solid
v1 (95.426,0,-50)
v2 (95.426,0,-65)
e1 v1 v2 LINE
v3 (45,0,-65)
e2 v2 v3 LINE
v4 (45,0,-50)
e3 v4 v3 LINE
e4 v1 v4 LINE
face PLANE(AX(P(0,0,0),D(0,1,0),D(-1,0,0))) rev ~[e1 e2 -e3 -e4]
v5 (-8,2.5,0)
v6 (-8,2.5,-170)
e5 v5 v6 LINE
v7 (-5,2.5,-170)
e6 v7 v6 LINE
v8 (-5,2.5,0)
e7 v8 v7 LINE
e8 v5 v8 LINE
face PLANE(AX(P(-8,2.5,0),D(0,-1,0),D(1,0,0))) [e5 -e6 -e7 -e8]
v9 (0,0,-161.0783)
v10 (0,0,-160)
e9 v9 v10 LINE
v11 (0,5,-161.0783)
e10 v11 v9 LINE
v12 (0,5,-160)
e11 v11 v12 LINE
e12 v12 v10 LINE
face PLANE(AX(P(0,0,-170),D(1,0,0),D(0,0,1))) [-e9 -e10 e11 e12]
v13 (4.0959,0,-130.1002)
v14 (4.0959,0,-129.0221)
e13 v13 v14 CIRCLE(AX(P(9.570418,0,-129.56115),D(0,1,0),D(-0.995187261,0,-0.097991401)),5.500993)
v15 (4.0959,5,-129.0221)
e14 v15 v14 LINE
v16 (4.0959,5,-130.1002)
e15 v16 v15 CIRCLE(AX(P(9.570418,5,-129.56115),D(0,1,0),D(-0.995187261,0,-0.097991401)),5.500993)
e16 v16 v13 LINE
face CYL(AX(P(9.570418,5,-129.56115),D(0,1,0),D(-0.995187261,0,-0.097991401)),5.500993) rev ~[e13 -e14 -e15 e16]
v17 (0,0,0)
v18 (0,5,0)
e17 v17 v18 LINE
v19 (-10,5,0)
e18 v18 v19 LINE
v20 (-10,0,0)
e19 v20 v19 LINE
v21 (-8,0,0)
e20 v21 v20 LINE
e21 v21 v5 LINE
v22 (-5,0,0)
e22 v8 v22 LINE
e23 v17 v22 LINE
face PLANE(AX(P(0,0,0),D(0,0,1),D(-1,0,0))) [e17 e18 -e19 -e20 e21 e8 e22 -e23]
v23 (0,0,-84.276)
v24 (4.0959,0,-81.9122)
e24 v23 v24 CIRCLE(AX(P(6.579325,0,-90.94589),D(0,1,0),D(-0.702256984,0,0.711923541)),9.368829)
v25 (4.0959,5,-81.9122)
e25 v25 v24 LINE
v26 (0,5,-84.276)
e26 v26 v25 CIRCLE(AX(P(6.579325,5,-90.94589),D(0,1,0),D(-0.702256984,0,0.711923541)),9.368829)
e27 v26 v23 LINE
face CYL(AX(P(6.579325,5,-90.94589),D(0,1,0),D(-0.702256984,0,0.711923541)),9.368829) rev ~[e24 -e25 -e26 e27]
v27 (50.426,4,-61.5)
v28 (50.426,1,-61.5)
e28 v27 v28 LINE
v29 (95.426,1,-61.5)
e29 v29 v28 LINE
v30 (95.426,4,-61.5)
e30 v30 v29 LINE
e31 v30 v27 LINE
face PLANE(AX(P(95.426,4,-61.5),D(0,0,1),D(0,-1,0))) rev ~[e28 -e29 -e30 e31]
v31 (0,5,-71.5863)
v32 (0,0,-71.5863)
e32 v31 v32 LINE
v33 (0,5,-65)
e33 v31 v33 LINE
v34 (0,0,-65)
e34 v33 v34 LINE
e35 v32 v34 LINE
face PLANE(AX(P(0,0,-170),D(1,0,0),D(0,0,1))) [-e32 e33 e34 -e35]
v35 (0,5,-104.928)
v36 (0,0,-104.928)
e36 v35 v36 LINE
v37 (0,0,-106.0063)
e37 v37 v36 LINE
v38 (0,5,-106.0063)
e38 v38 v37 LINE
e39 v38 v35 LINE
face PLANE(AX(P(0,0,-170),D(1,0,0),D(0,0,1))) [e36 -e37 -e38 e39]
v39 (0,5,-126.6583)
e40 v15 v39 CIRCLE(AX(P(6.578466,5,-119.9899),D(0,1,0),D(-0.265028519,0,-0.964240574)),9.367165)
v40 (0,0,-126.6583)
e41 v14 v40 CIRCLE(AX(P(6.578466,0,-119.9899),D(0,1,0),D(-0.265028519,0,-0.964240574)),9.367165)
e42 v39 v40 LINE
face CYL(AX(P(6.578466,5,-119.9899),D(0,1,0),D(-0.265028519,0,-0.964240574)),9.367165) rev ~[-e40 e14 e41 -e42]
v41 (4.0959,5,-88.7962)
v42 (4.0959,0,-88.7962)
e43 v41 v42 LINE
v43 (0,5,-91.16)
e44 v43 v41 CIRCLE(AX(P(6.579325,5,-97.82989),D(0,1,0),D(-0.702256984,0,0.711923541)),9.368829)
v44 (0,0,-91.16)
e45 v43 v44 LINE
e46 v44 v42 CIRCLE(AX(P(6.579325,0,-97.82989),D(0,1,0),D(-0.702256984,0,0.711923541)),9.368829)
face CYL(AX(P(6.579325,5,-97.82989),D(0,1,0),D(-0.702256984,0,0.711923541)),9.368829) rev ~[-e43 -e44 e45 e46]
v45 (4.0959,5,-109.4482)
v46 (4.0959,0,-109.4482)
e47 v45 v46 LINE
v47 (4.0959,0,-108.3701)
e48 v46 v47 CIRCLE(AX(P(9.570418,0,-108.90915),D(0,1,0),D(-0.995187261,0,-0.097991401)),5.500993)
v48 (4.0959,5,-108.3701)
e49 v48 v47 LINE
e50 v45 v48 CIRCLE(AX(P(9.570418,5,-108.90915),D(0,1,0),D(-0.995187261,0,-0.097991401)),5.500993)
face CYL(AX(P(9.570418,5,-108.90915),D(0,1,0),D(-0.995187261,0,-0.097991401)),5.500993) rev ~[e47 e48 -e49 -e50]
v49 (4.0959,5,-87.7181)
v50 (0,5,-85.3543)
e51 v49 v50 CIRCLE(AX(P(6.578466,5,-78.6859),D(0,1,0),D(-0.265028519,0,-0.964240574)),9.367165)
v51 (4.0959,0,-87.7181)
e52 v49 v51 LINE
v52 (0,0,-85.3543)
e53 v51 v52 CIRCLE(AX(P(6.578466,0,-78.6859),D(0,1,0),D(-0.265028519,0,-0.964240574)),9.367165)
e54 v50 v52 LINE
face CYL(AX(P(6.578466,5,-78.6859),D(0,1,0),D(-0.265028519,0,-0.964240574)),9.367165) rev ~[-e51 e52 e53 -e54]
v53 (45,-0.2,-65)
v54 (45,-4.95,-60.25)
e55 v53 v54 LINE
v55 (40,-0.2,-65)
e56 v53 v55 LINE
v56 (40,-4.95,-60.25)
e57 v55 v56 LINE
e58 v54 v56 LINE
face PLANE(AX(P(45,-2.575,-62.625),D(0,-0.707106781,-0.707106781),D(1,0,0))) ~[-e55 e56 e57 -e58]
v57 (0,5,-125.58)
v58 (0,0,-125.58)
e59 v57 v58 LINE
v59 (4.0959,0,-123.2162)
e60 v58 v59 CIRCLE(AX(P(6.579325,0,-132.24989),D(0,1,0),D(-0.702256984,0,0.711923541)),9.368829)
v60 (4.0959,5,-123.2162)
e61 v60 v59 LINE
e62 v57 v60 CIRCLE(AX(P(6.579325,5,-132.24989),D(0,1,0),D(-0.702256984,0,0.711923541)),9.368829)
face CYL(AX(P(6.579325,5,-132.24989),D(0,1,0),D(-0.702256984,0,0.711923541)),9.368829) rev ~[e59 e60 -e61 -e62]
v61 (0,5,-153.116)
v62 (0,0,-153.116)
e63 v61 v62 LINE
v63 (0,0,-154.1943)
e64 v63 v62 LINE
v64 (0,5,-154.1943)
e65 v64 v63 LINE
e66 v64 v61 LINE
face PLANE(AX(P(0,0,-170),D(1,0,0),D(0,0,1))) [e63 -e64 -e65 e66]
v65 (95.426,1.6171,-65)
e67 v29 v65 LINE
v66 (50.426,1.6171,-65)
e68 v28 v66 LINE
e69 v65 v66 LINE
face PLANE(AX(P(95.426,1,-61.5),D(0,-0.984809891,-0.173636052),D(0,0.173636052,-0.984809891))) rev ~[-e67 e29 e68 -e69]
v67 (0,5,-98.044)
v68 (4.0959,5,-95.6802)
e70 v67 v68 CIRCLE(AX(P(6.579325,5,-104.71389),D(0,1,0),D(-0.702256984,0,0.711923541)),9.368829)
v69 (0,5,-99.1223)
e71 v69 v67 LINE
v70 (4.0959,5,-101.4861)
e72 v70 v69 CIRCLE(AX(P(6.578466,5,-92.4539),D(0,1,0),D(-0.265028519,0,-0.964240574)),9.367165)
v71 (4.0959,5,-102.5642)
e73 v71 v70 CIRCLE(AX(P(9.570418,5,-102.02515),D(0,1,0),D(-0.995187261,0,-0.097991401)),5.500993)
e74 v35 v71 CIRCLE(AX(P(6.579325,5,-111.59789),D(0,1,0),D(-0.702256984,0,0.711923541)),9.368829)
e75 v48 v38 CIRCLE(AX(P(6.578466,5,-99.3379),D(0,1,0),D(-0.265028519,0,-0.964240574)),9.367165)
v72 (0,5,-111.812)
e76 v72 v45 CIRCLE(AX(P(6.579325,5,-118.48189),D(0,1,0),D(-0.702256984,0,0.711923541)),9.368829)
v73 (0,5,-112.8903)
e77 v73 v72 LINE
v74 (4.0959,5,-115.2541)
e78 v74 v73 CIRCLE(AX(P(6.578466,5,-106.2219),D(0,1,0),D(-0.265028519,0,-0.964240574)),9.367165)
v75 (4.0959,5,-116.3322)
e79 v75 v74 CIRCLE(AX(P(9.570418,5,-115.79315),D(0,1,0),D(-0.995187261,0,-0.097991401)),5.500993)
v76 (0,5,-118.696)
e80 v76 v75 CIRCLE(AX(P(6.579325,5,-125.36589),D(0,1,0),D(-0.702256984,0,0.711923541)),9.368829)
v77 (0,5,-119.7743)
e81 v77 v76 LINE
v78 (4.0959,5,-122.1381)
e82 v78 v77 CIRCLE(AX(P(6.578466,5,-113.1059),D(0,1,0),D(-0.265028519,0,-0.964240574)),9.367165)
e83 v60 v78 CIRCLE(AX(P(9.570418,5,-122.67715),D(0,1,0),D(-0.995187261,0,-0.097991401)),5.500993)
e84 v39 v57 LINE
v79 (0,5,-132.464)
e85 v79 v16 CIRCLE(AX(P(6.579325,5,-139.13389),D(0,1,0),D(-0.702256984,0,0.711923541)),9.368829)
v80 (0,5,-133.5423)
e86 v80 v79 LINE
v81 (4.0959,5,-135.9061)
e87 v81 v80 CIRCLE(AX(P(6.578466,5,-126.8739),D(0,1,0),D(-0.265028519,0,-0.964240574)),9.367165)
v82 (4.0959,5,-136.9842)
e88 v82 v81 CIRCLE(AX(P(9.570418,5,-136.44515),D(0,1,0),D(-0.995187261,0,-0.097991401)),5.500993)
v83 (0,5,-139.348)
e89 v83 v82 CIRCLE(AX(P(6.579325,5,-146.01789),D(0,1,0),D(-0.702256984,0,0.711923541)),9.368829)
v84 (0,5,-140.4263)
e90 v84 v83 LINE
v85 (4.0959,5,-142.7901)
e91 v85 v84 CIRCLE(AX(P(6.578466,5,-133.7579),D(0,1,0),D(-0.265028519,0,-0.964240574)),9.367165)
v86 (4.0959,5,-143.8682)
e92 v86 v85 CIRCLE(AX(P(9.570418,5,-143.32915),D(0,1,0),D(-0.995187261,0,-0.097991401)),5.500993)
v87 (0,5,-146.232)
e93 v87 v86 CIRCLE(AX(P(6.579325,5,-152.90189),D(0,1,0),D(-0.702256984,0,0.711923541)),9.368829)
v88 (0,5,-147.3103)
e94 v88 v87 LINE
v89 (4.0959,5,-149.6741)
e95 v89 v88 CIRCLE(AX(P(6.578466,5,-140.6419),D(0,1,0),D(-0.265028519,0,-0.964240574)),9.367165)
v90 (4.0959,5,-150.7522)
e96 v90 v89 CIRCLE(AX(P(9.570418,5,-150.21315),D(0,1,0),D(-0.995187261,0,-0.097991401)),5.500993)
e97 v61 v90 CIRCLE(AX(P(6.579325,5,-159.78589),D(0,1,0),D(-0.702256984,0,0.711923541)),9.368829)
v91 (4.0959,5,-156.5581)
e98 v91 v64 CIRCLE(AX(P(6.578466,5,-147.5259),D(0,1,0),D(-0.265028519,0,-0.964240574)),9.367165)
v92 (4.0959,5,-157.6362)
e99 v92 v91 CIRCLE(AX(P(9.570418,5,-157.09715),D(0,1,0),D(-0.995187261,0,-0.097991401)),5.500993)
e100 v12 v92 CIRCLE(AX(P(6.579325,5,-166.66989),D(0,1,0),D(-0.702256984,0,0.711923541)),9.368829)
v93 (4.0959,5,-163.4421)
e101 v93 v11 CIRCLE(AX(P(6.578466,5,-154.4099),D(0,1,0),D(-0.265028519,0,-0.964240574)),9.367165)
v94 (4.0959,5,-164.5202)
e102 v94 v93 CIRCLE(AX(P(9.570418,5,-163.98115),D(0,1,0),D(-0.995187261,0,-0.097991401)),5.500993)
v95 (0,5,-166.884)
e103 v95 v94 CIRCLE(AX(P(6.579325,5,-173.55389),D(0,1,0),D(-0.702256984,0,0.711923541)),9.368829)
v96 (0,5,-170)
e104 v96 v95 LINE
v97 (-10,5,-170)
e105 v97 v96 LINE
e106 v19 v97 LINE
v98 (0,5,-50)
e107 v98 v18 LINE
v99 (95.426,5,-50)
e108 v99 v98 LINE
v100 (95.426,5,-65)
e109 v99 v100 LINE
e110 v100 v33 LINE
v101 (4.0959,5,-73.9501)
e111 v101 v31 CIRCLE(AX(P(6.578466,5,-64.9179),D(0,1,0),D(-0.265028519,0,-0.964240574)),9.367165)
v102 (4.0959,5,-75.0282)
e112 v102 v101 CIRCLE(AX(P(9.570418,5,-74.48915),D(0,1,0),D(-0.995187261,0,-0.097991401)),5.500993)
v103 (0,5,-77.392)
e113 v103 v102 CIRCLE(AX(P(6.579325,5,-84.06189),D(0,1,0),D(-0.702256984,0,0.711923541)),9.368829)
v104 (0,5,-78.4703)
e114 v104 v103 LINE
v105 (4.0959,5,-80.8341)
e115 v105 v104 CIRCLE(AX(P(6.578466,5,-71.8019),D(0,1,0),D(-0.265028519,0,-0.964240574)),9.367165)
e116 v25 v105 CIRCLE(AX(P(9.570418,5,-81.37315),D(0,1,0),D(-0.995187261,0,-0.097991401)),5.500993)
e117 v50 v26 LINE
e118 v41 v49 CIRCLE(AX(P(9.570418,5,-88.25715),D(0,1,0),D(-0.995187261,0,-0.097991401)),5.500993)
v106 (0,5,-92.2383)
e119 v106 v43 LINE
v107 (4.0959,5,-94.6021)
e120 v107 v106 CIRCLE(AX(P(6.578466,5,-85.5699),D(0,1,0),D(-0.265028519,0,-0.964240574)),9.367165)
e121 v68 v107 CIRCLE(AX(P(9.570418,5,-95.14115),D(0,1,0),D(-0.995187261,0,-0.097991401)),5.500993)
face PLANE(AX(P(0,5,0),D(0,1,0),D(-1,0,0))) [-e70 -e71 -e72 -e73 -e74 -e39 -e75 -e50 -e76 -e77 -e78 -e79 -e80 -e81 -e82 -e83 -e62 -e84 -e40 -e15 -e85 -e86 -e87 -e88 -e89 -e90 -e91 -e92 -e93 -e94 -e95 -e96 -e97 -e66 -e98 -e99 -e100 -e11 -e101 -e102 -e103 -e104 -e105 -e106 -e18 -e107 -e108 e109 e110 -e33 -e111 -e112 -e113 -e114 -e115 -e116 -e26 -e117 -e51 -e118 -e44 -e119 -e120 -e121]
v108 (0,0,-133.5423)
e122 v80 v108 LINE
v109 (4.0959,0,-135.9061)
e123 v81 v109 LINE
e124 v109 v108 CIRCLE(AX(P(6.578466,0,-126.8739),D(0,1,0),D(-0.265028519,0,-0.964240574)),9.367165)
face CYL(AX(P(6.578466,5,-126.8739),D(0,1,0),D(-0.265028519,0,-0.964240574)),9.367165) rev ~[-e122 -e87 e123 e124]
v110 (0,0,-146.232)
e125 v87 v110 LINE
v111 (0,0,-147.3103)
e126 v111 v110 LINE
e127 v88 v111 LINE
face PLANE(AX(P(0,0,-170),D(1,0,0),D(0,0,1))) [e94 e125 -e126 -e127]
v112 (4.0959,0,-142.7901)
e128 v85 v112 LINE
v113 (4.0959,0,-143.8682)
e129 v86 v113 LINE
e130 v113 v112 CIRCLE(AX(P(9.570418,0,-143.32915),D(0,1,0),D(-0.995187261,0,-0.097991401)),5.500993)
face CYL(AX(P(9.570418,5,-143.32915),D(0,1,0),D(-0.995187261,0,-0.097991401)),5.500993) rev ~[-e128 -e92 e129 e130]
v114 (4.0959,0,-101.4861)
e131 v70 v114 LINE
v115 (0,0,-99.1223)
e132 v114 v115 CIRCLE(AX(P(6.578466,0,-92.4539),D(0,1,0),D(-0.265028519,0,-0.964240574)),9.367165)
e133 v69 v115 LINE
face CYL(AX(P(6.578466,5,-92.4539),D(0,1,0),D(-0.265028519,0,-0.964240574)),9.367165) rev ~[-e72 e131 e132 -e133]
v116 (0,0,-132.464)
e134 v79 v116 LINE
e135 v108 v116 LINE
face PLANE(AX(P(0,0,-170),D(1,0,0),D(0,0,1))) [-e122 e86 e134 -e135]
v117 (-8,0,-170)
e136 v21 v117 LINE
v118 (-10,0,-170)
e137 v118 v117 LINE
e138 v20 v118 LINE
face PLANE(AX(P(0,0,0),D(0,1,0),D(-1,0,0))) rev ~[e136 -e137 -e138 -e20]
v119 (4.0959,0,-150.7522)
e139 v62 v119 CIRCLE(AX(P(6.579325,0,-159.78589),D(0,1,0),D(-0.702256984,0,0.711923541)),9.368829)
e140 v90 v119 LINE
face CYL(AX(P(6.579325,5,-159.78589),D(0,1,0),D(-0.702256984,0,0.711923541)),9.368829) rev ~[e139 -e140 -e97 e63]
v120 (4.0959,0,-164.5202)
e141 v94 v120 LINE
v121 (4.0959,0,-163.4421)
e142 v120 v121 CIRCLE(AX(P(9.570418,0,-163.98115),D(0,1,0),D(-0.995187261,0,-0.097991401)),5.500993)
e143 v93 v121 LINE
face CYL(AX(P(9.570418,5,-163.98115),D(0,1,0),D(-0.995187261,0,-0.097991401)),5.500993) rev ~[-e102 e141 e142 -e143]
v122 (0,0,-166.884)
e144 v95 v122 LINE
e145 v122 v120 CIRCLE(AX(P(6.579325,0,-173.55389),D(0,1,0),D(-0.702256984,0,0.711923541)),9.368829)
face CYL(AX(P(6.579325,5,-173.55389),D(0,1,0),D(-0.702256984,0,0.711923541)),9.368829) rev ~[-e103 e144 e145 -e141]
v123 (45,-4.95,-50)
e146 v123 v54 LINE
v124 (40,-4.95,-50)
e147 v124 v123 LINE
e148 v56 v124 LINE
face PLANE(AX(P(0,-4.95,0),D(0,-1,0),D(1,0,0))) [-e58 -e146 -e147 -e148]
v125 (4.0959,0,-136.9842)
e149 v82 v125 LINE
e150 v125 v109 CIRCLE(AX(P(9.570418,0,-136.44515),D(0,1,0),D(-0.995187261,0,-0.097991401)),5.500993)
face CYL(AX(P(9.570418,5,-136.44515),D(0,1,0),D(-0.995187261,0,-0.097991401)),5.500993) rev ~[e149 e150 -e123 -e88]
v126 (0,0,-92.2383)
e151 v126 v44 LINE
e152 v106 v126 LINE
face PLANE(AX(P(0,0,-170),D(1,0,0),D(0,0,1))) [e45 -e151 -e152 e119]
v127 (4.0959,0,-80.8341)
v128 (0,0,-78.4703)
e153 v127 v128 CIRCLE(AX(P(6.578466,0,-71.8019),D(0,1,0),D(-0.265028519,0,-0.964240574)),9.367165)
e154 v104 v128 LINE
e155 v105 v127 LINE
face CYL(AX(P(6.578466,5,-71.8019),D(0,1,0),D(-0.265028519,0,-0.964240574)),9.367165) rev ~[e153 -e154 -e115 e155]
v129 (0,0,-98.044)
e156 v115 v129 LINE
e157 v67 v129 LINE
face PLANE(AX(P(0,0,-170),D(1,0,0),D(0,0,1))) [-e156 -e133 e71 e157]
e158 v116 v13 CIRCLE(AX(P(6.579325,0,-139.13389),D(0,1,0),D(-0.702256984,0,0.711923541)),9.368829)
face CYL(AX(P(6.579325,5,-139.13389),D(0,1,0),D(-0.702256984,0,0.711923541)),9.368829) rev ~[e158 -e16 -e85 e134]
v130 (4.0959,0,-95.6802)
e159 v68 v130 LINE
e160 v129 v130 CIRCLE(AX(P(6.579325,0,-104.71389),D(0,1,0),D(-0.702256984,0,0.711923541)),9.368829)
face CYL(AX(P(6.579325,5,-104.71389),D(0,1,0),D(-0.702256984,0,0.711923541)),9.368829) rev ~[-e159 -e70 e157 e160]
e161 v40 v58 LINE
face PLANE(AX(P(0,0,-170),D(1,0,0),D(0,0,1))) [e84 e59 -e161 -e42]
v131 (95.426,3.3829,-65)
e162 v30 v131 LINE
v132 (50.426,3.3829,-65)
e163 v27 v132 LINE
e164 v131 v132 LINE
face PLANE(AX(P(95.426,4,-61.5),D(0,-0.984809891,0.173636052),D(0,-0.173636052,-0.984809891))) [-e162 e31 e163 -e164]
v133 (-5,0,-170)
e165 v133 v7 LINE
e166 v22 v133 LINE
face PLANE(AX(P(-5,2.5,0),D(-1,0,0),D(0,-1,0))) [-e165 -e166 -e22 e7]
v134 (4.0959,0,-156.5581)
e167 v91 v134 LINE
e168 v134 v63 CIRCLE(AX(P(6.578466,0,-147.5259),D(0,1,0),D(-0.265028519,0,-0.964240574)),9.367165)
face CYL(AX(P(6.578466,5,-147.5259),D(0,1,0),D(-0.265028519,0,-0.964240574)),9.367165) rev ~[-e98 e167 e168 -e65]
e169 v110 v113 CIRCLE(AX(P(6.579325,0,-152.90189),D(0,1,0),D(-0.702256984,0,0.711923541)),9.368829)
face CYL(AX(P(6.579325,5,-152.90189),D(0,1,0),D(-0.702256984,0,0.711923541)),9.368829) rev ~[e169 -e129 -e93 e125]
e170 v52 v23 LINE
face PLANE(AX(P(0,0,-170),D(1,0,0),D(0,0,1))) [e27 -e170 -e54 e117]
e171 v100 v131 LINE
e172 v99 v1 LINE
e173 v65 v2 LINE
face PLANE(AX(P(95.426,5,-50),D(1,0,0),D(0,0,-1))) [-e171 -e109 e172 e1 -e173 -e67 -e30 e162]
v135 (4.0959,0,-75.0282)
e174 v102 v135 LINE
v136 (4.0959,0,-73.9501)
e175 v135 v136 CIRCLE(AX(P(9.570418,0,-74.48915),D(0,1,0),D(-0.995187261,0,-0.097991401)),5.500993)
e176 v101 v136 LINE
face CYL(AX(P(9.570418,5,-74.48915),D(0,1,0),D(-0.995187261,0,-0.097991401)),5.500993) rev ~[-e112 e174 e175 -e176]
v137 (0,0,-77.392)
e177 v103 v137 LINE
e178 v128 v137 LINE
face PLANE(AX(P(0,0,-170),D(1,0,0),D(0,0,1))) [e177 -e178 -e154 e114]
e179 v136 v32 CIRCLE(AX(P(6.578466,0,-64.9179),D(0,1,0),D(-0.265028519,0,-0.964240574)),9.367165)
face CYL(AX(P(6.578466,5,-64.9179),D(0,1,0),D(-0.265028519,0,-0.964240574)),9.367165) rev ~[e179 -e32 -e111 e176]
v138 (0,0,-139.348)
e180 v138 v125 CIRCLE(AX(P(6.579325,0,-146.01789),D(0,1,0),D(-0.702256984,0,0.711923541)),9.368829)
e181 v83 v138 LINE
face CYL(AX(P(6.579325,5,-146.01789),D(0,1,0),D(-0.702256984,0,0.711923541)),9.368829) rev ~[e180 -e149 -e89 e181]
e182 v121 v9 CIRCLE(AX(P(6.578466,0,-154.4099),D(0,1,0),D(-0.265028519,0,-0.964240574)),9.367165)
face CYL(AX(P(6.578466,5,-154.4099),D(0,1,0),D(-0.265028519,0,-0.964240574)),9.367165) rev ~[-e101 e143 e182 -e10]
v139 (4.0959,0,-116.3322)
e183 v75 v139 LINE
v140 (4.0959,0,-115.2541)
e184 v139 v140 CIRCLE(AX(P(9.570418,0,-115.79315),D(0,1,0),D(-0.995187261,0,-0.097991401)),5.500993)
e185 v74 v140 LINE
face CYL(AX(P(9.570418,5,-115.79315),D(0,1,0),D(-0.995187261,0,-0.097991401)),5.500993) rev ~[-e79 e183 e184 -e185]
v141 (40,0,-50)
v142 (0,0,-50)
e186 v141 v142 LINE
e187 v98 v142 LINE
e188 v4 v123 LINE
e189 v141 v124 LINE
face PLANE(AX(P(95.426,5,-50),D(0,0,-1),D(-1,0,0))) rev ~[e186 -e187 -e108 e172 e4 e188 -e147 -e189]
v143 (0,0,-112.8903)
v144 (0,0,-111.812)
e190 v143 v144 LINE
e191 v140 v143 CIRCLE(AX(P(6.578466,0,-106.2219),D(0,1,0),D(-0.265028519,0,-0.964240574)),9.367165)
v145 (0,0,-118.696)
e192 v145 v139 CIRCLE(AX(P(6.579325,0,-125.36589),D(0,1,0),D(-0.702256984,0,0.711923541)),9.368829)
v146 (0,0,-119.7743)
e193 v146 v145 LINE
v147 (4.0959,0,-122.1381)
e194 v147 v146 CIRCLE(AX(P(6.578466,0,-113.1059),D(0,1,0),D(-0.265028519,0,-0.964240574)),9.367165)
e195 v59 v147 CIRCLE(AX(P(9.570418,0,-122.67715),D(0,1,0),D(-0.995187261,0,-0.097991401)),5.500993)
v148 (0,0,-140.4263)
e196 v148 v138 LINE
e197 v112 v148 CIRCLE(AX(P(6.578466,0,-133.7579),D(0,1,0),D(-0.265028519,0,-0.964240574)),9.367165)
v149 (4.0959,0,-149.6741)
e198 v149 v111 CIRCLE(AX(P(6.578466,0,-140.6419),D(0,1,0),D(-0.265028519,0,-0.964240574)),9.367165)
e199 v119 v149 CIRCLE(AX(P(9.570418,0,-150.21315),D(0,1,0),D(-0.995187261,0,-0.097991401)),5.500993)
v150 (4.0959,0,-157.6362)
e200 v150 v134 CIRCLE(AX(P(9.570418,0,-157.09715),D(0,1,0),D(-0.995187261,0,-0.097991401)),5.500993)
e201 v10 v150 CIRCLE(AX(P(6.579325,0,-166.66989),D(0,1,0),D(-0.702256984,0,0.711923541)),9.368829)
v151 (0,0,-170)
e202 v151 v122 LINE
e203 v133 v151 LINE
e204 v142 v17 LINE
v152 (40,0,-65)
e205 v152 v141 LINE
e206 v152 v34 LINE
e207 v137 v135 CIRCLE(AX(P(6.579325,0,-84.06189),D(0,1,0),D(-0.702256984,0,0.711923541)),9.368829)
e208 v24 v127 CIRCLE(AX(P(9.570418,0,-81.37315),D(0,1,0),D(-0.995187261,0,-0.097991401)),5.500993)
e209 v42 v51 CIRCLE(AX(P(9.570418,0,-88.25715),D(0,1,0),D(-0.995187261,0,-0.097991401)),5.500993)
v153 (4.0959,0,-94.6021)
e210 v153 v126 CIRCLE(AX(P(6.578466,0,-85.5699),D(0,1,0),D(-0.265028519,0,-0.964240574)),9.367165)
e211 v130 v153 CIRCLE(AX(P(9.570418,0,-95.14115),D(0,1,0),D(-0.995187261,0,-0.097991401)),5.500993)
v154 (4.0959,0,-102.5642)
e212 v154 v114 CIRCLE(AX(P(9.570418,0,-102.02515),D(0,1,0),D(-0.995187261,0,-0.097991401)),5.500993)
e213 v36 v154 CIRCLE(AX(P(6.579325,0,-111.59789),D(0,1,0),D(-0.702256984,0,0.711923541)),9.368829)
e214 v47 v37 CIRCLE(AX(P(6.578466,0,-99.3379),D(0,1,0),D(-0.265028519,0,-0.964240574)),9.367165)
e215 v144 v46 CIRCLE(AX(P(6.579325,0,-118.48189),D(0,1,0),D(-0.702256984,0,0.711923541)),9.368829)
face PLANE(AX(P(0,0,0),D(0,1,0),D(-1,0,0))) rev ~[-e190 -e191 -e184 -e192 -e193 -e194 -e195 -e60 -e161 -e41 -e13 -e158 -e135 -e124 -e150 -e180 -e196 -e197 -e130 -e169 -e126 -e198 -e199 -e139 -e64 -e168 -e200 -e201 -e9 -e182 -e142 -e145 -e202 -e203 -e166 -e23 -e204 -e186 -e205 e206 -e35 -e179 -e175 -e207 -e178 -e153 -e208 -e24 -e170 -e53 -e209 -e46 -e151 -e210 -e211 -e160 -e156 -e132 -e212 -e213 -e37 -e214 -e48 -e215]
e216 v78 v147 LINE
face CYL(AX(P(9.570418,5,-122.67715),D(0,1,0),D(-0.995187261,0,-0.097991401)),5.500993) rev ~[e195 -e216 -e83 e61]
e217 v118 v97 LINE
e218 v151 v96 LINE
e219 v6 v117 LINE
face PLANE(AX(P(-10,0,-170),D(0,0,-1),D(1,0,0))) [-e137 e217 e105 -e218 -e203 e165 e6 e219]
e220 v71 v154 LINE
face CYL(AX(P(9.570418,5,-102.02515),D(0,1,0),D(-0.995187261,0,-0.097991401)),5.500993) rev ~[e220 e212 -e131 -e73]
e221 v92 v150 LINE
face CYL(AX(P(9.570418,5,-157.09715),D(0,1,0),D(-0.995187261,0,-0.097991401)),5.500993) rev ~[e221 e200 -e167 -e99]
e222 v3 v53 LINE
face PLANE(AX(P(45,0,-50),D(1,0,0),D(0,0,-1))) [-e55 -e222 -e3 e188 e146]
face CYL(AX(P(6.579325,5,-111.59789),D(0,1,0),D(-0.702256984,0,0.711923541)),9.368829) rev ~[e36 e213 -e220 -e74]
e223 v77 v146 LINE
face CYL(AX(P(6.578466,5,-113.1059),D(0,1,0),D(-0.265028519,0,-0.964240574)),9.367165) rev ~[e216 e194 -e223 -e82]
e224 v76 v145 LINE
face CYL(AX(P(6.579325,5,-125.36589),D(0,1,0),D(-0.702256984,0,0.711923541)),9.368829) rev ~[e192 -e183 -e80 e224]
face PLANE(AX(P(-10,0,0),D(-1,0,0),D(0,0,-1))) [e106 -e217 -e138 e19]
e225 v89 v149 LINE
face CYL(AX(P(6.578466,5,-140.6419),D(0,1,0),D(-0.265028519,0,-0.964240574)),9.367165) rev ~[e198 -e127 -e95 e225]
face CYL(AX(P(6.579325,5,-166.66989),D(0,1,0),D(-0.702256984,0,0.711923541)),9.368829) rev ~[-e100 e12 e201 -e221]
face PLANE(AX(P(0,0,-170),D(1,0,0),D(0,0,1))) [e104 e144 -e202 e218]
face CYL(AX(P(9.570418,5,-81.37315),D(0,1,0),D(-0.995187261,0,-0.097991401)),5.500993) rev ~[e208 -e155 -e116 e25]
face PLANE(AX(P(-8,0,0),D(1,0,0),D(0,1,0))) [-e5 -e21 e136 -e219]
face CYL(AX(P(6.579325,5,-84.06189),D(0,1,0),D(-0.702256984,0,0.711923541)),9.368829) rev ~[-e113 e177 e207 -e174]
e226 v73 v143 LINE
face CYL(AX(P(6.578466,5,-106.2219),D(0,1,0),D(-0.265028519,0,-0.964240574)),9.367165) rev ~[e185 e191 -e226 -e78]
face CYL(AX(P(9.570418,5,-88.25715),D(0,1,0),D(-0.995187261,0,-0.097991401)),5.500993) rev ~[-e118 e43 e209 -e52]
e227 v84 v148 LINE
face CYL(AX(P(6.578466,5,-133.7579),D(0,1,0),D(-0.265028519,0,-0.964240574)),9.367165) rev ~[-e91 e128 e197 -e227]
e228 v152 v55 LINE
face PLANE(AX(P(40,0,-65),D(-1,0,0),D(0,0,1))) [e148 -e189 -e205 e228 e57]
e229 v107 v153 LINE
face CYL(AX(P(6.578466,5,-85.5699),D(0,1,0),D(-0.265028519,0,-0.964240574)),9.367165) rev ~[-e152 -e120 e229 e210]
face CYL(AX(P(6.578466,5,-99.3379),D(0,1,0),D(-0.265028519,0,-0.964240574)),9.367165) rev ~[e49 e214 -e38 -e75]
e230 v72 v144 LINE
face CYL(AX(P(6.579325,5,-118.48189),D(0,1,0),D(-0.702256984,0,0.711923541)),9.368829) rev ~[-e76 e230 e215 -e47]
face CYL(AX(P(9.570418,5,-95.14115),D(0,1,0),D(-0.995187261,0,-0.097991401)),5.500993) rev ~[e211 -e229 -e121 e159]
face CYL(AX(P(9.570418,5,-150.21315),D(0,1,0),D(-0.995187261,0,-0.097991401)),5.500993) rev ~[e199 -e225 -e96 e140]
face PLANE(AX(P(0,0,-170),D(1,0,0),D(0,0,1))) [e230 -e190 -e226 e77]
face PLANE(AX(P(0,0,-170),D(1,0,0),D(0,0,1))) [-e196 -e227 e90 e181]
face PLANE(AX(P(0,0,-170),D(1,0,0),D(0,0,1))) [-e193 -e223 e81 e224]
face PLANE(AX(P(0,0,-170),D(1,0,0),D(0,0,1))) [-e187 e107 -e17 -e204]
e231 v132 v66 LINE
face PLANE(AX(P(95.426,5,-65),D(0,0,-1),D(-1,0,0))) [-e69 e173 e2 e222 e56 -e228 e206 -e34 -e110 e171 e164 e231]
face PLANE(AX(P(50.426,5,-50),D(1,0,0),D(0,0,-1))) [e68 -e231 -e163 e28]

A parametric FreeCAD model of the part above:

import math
import FreeCAD as App
import Part
import Sketcher
Q = App.Units.Quantity


def edges_at(feature, points):
    """Names of the edges that pass closest to the given points."""
    edges = feature.Shape.Edges
    near = lambda p: min(range(len(edges)), key=lambda i: edges[i].distToShape(Part.Vertex(*p))[0])
    return sorted({f"Edge{near(p) + 1}" for p in points})

doc = App.newDocument("Part")
params = doc.addObject("Spreadsheet::Sheet", "Params")
for row, (alias, value) in enumerate([
    ("sketch1_width", "10 mm"),
    ("sketch1_height", "170 mm"),
    ("pad1_length", "5 mm"),
    ("sketch2_height", "15 mm"),
    ("pad2_length", "5 mm"),
    ("pad3_length", "5 mm"),
    ("sketch4_width", "3 mm"),
    ("sketch4_height", "2.5 mm"),
    ("pocket1_length", "300 mm"),
    ("sketch5_width", "5 mm"),
    ("sketch5_height", "15 mm"),
    ("pad4_length", "4.95 mm"),
    ("chamfer_size", "4.75 mm"),
    ("sketch6_width", "3 mm"),
    ("pocket2_length", "45 mm"),
], start=1):
    params.set(f"A{row}", alias)
    params.set(f"B{row}", "=" + value)
    params.setAlias(f"B{row}", alias)

body = doc.addObject("PartDesign::Body", "Body")

sketch1 = doc.addObject("Sketcher::SketchObject", "Sketch")
body.addObject(sketch1)
sketch1.AttachmentSupport = (doc.XZ_Plane, [""])
sketch1.MapMode = "FlatFace"
sketch1.addGeometry([
    Part.LineSegment(App.Vector(-10, 0, 0), App.Vector(0, 0, 0)),
    Part.LineSegment(App.Vector(0, 0, 0), App.Vector(0, -170, 0)),
    Part.LineSegment(App.Vector(0, -170, 0), App.Vector(-10, -170, 0)),
    Part.LineSegment(App.Vector(-10, -170, 0), App.Vector(-10, 0, 0)),
], False)
sketch1.addConstraint([
    Sketcher.Constraint("Coincident", 0, 2, 1, 1),
    Sketcher.Constraint("Coincident", 1, 2, 2, 1),
    Sketcher.Constraint("Coincident", 2, 2, 3, 1),
    Sketcher.Constraint("Coincident", 3, 2, 0, 1),
    Sketcher.Constraint("Horizontal", 0),
    Sketcher.Constraint("Vertical", 1),
    Sketcher.Constraint("Horizontal", 2),
    Sketcher.Constraint("Vertical", 3),
    Sketcher.Constraint("Coincident", 0, 2, -1, 1),
    Sketcher.Constraint("DistanceX", 0, 1, 0, 2, Q("10 mm")),
    Sketcher.Constraint("DistanceY", 1, 2, 1, 1, Q("170 mm")),
])
sketch1.setExpression("Constraints[9]", "Params.sketch1_width")
sketch1.setExpression("Constraints[10]", "Params.sketch1_height")
pad1 = doc.addObject("PartDesign::Pad", "Pad")
body.addObject(pad1)
pad1.Profile = sketch1
pad1.setExpression("Length", "Params.pad1_length")
pad1.Reversed = True

sketch2 = doc.addObject("Sketcher::SketchObject", "Sketch001")
body.addObject(sketch2)
sketch2.AttachmentSupport = (doc.XZ_Plane, [""])
sketch2.MapMode = "FlatFace"
sketch2.AttachmentOffset = App.Placement(App.Vector(0, 0, -5), App.Rotation())
sketch2.addGeometry([
    Part.LineSegment(App.Vector(0, -50, 0), App.Vector(95.426, -50, 0)),
    Part.LineSegment(App.Vector(95.426, -50, 0), App.Vector(95.426, -65, 0)),
    Part.LineSegment(App.Vector(95.426, -65, 0), App.Vector(0, -65, 0)),
    Part.LineSegment(App.Vector(0, -65, 0), App.Vector(0, -50, 0)),
], False)
sketch2.addConstraint([
    Sketcher.Constraint("Coincident", 0, 2, 1, 1),
    Sketcher.Constraint("Coincident", 1, 2, 2, 1),
    Sketcher.Constraint("Coincident", 2, 2, 3, 1),
    Sketcher.Constraint("Coincident", 3, 2, 0, 1),
    Sketcher.Constraint("Horizontal", 0),
    Sketcher.Constraint("Vertical", 1),
    Sketcher.Constraint("Horizontal", 2),
    Sketcher.Constraint("Vertical", 3),
    Sketcher.Constraint("PointOnObject", 2, 2, -2),
    Sketcher.Constraint("DistanceY", 1, 2, 1, 1, Q("15 mm")),
    Sketcher.Constraint("DistanceY", 0, 2, -1, 1, Q("50 mm")),
    Sketcher.Constraint("DistanceX", 0, 1, 0, 2, Q("95.426 mm")),
])
sketch2.setExpression("Constraints[9]", "Params.sketch2_height")
pad2 = doc.addObject("PartDesign::Pad", "Pad001")
body.addObject(pad2)
pad2.Profile = sketch2
pad2.setExpression("Length", "Params.pad2_length")

sketch3 = doc.addObject("Sketcher::SketchObject", "Sketch002")
body.addObject(sketch3)
sketch3.AttachmentSupport = (doc.XZ_Plane, [""])
sketch3.MapMode = "FlatFace"
sketch3.AttachmentOffset = App.Placement(App.Vector(0, 0, -5), App.Rotation())
sketch3.addGeometry([
    Part.LineSegment(App.Vector(0, -166.884, 0), App.Vector(0, -161.0783, 0)),
    Part.ArcOfCircle(Part.Circle(App.Vector(6.5788, -154.4091, 0), App.Vector(0, 0, 1), 9.368024), math.radians(-134.609038), math.radians(-105.369322)),
    Part.ArcOfCircle(Part.Circle(App.Vector(9.570418, -163.98115, 0), App.Vector(0, 0, 1), 5.500993), math.radians(174.376482), math.radians(185.623518)),
    Part.ArcOfCircle(Part.Circle(App.Vector(6.5788, -173.5532, 0), App.Vector(0, 0, 1), 9.367969), math.radians(105.369322), math.radians(134.609038)),
    Part.LineSegment(App.Vector(0, -160, 0), App.Vector(0, -154.1943, 0)),
    Part.ArcOfCircle(Part.Circle(App.Vector(6.5788, -147.5251, 0), App.Vector(0, 0, 1), 9.368024), math.radians(-134.609038), math.radians(-105.369322)),
    Part.ArcOfCircle(Part.Circle(App.Vector(9.570418, -157.09715, 0), App.Vector(0, 0, 1), 5.500993), math.radians(174.376482), math.radians(185.623518)),
    Part.ArcOfCircle(Part.Circle(App.Vector(6.5788, -166.6692, 0), App.Vector(0, 0, 1), 9.367969), math.radians(105.369322), math.radians(134.609038)),
    Part.LineSegment(App.Vector(0, -153.116, 0), App.Vector(0, -147.3103, 0)),
    Part.ArcOfCircle(Part.Circle(App.Vector(6.5788, -140.6411, 0), App.Vector(0, 0, 1), 9.368024), math.radians(-134.609038), math.radians(-105.369322)),
    Part.ArcOfCircle(Part.Circle(App.Vector(9.570418, -150.21315, 0), App.Vector(0, 0, 1), 5.500993), math.radians(174.376482), math.radians(185.623518)),
    Part.ArcOfCircle(Part.Circle(App.Vector(6.5788, -159.7852, 0), App.Vector(0, 0, 1), 9.367969), math.radians(105.369322), math.radians(134.609038)),
    Part.LineSegment(App.Vector(0, -146.232, 0), App.Vector(0, -140.4263, 0)),
    Part.ArcOfCircle(Part.Circle(App.Vector(6.5788, -133.7571, 0), App.Vector(0, 0, 1), 9.368024), math.radians(-134.609038), math.radians(-105.369322)),
    Part.ArcOfCircle(Part.Circle(App.Vector(9.570418, -143.32915, 0), App.Vector(0, 0, 1), 5.500993), math.radians(174.376482), math.radians(185.623518)),
    Part.ArcOfCircle(Part.Circle(App.Vector(6.5788, -152.9012, 0), App.Vector(0, 0, 1), 9.367969), math.radians(105.369322), math.radians(134.609038)),
    Part.LineSegment(App.Vector(0, -139.348, 0), App.Vector(0, -133.5423, 0)),
    Part.ArcOfCircle(Part.Circle(App.Vector(6.5788, -126.8731, 0), App.Vector(0, 0, 1), 9.368024), math.radians(-134.609038), math.radians(-105.369322)),
    Part.ArcOfCircle(Part.Circle(App.Vector(9.570418, -136.44515, 0), App.Vector(0, 0, 1), 5.500993), math.radians(174.376482), math.radians(185.623518)),
    Part.ArcOfCircle(Part.Circle(App.Vector(6.5788, -146.0172, 0), App.Vector(0, 0, 1), 9.367969), math.radians(105.369322), math.radians(134.609038)),
    Part.LineSegment(App.Vector(0, -132.464, 0), App.Vector(0, -126.6583, 0)),
    Part.ArcOfCircle(Part.Circle(App.Vector(6.5788, -119.9891, 0), App.Vector(0, 0, 1), 9.368024), math.radians(-134.609038), math.radians(-105.369322)),
    Part.ArcOfCircle(Part.Circle(App.Vector(9.570418, -129.56115, 0), App.Vector(0, 0, 1), 5.500993), math.radians(174.376482), math.radians(185.623518)),
    Part.ArcOfCircle(Part.Circle(App.Vector(6.5788, -139.1332, 0), App.Vector(0, 0, 1), 9.367969), math.radians(105.369322), math.radians(134.609038)),
    Part.LineSegment(App.Vector(0, -125.58, 0), App.Vector(0, -119.7743, 0)),
    Part.ArcOfCircle(Part.Circle(App.Vector(6.5788, -113.1051, 0), App.Vector(0, 0, 1), 9.368024), math.radians(-134.609038), math.radians(-105.369322)),
    Part.ArcOfCircle(Part.Circle(App.Vector(9.570418, -122.67715, 0), App.Vector(0, 0, 1), 5.500993), math.radians(174.376482), math.radians(185.623518)),
    Part.ArcOfCircle(Part.Circle(App.Vector(6.5788, -132.2492, 0), App.Vector(0, 0, 1), 9.367969), math.radians(105.369322), math.radians(134.609038)),
    Part.LineSegment(App.Vector(0, -118.696, 0), App.Vector(0, -112.8903, 0)),
    Part.ArcOfCircle(Part.Circle(App.Vector(6.5788, -106.2211, 0), App.Vector(0, 0, 1), 9.368024), math.radians(-134.609038), math.radians(-105.369322)),
    Part.ArcOfCircle(Part.Circle(App.Vector(9.570418, -115.79315, 0), App.Vector(0, 0, 1), 5.500993), math.radians(174.376482), math.radians(185.623518)),
    Part.ArcOfCircle(Part.Circle(App.Vector(6.5788, -125.3652, 0), App.Vector(0, 0, 1), 9.367969), math.radians(105.369322), math.radians(134.609038)),
    Part.LineSegment(App.Vector(0, -111.812, 0), App.Vector(0, -106.0063, 0)),
    Part.ArcOfCircle(Part.Circle(App.Vector(6.5788, -99.3371, 0), App.Vector(0, 0, 1), 9.368024), math.radians(-134.609038), math.radians(-105.369322)),
    Part.ArcOfCircle(Part.Circle(App.Vector(9.570418, -108.90915, 0), App.Vector(0, 0, 1), 5.500993), math.radians(174.376482), math.radians(185.623518)),
    Part.ArcOfCircle(Part.Circle(App.Vector(6.5788, -118.4812, 0), App.Vector(0, 0, 1), 9.367969), math.radians(105.369322), math.radians(134.609038)),
    Part.LineSegment(App.Vector(0, -104.928, 0), App.Vector(0, -99.1223, 0)),
    Part.ArcOfCircle(Part.Circle(App.Vector(6.5788, -92.4531, 0), App.Vector(0, 0, 1), 9.368024), math.radians(-134.609038), math.radians(-105.369322)),
    Part.ArcOfCircle(Part.Circle(App.Vector(9.570418, -102.02515, 0), App.Vector(0, 0, 1), 5.500993), math.radians(174.376482), math.radians(185.623518)),
    Part.ArcOfCircle(Part.Circle(App.Vector(6.5788, -111.5972, 0), App.Vector(0, 0, 1), 9.367969), math.radians(105.369322), math.radians(134.609038)),
    Part.LineSegment(App.Vector(0, -98.044, 0), App.Vector(0, -92.2383, 0)),
    Part.ArcOfCircle(Part.Circle(App.Vector(6.5788, -85.5691, 0), App.Vector(0, 0, 1), 9.368024), math.radians(-134.609038), math.radians(-105.369322)),
    Part.ArcOfCircle(Part.Circle(App.Vector(9.570418, -95.14115, 0), App.Vector(0, 0, 1), 5.500993), math.radians(174.376482), math.radians(185.623518)),
    Part.ArcOfCircle(Part.Circle(App.Vector(6.5788, -104.7132, 0), App.Vector(0, 0, 1), 9.367969), math.radians(105.369322), math.radians(134.609038)),
    Part.LineSegment(App.Vector(0, -91.16, 0), App.Vector(0, -85.3543, 0)),
    Part.ArcOfCircle(Part.Circle(App.Vector(6.5788, -78.6851, 0), App.Vector(0, 0, 1), 9.368024), math.radians(-134.609038), math.radians(-105.369322)),
    Part.ArcOfCircle(Part.Circle(App.Vector(9.570418, -88.25715, 0), App.Vector(0, 0, 1), 5.500993), math.radians(174.376482), math.radians(185.623518)),
    Part.ArcOfCircle(Part.Circle(App.Vector(6.5788, -97.8292, 0), App.Vector(0, 0, 1), 9.367969), math.radians(105.369322), math.radians(134.609038)),
    Part.LineSegment(App.Vector(0, -84.276, 0), App.Vector(0, -78.4703, 0)),
    Part.ArcOfCircle(Part.Circle(App.Vector(6.5788, -71.8011, 0), App.Vector(0, 0, 1), 9.368024), math.radians(-134.609038), math.radians(-105.369322)),
    Part.ArcOfCircle(Part.Circle(App.Vector(9.570418, -81.37315, 0), App.Vector(0, 0, 1), 5.500993), math.radians(174.376482), math.radians(185.623518)),
    Part.ArcOfCircle(Part.Circle(App.Vector(6.5788, -90.9452, 0), App.Vector(0, 0, 1), 9.367969), math.radians(105.369322), math.radians(134.609038)),
    Part.LineSegment(App.Vector(0, -77.392, 0), App.Vector(0, -71.5863, 0)),
    Part.ArcOfCircle(Part.Circle(App.Vector(6.5788, -64.9171, 0), App.Vector(0, 0, 1), 9.368024), math.radians(-134.609038), math.radians(-105.369322)),
    Part.ArcOfCircle(Part.Circle(App.Vector(9.570418, -74.48915, 0), App.Vector(0, 0, 1), 5.500993), math.radians(174.376482), math.radians(185.623518)),
    Part.ArcOfCircle(Part.Circle(App.Vector(6.5788, -84.0612, 0), App.Vector(0, 0, 1), 9.367969), math.radians(105.369322), math.radians(134.609038)),
], False)
sketch3.addConstraint([
    Sketcher.Constraint("Coincident", 0, 2, 1, 1),
    Sketcher.Constraint("Coincident", 1, 2, 2, 1),
    Sketcher.Constraint("Coincident", 2, 2, 3, 1),
    Sketcher.Constraint("Coincident", 3, 2, 0, 1),
    Sketcher.Constraint("Coincident", 4, 2, 5, 1),
    Sketcher.Constraint("Coincident", 5, 2, 6, 1),
    Sketcher.Constraint("Coincident", 6, 2, 7, 1),
    Sketcher.Constraint("Coincident", 7, 2, 4, 1),
    Sketcher.Constraint("Coincident", 8, 2, 9, 1),
    Sketcher.Constraint("Coincident", 9, 2, 10, 1),
    Sketcher.Constraint("Coincident", 10, 2, 11, 1),
    Sketcher.Constraint("Coincident", 11, 2, 8, 1),
    Sketcher.Constraint("Coincident", 12, 2, 13, 1),
    Sketcher.Constraint("Coincident", 13, 2, 14, 1),
    Sketcher.Constraint("Coincident", 14, 2, 15, 1),
    Sketcher.Constraint("Coincident", 15, 2, 12, 1),
    Sketcher.Constraint("Coincident", 16, 2, 17, 1),
    Sketcher.Constraint("Coincident", 17, 2, 18, 1),
    Sketcher.Constraint("Coincident", 18, 2, 19, 1),
    Sketcher.Constraint("Coincident", 19, 2, 16, 1),
    Sketcher.Constraint("Coincident", 20, 2, 21, 1),
    Sketcher.Constraint("Coincident", 21, 2, 22, 1),
    Sketcher.Constraint("Coincident", 22, 2, 23, 1),
    Sketcher.Constraint("Coincident", 23, 2, 20, 1),
    Sketcher.Constraint("Coincident", 24, 2, 25, 1),
    Sketcher.Constraint("Coincident", 25, 2, 26, 1),
    Sketcher.Constraint("Coincident", 26, 2, 27, 1),
    Sketcher.Constraint("Coincident", 27, 2, 24, 1),
    Sketcher.Constraint("Coincident", 28, 2, 29, 1),
    Sketcher.Constraint("Coincident", 29, 2, 30, 1),
    Sketcher.Constraint("Coincident", 30, 2, 31, 1),
    Sketcher.Constraint("Coincident", 31, 2, 28, 1),
    Sketcher.Constraint("Coincident", 32, 2, 33, 1),
    Sketcher.Constraint("Coincident", 33, 2, 34, 1),
    Sketcher.Constraint("Coincident", 34, 2, 35, 1),
    Sketcher.Constraint("Coincident", 35, 2, 32, 1),
    Sketcher.Constraint("Coincident", 36, 2, 37, 1),
    Sketcher.Constraint("Coincident", 37, 2, 38, 1),
    Sketcher.Constraint("Coincident", 38, 2, 39, 1),
    Sketcher.Constraint("Coincident", 39, 2, 36, 1),
    Sketcher.Constraint("Coincident", 40, 2, 41, 1),
    Sketcher.Constraint("Coincident", 41, 2, 42, 1),
    Sketcher.Constraint("Coincident", 42, 2, 43, 1),
    Sketcher.Constraint("Coincident", 43, 2, 40, 1),
    Sketcher.Constraint("Coincident", 44, 2, 45, 1),
    Sketcher.Constraint("Coincident", 45, 2, 46, 1),
    Sketcher.Constraint("Coincident", 46, 2, 47, 1),
    Sketcher.Constraint("Coincident", 47, 2, 44, 1),
    Sketcher.Constraint("Coincident", 48, 2, 49, 1),
    Sketcher.Constraint("Coincident", 49, 2, 50, 1),
    Sketcher.Constraint("Coincident", 50, 2, 51, 1),
    Sketcher.Constraint("Coincident", 51, 2, 48, 1),
    Sketcher.Constraint("Coincident", 52, 2, 53, 1),
    Sketcher.Constraint("Coincident", 53, 2, 54, 1),
    Sketcher.Constraint("Coincident", 54, 2, 55, 1),
    Sketcher.Constraint("Coincident", 55, 2, 52, 1),
    Sketcher.Constraint("Vertical", 0),
    Sketcher.Constraint("Vertical", 4),
    Sketcher.Constraint("Vertical", 8),
    Sketcher.Constraint("Vertical", 12),
    Sketcher.Constraint("Vertical", 16),
    Sketcher.Constraint("Vertical", 20),
    Sketcher.Constraint("Vertical", 24),
    Sketcher.Constraint("Vertical", 28),
    Sketcher.Constraint("Vertical", 32),
    Sketcher.Constraint("Vertical", 36),
    Sketcher.Constraint("Vertical", 40),
    Sketcher.Constraint("Vertical", 44),
    Sketcher.Constraint("Vertical", 48),
    Sketcher.Constraint("Vertical", 52),
    Sketcher.Constraint("Equal", 1, 3),
    Sketcher.Constraint("Equal", 3, 5),
    Sketcher.Constraint("Equal", 2, 6),
    Sketcher.Constraint("Equal", 5, 7),
    Sketcher.Constraint("Equal", 7, 9),
    Sketcher.Constraint("Equal", 6, 10),
    Sketcher.Constraint("Equal", 9, 11),
    Sketcher.Constraint("Equal", 11, 13),
    Sketcher.Constraint("Equal", 10, 14),
    Sketcher.Constraint("Equal", 13, 15),
    Sketcher.Constraint("Equal", 15, 17),
    Sketcher.Constraint("Equal", 14, 18),
    Sketcher.Constraint("Equal", 17, 19),
    Sketcher.Constraint("Equal", 19, 21),
    Sketcher.Constraint("Equal", 18, 22),
    Sketcher.Constraint("Equal", 21, 23),
    Sketcher.Constraint("Equal", 23, 25),
    Sketcher.Constraint("Equal", 22, 26),
    Sketcher.Constraint("Equal", 25, 27),
    Sketcher.Constraint("Equal", 27, 29),
    Sketcher.Constraint("Equal", 26, 30),
    Sketcher.Constraint("Equal", 29, 31),
    Sketcher.Constraint("Equal", 31, 33),
    Sketcher.Constraint("Equal", 30, 34),
    Sketcher.Constraint("Equal", 33, 35),
    Sketcher.Constraint("Equal", 35, 37),
    Sketcher.Constraint("Equal", 34, 38),
    Sketcher.Constraint("Equal", 37, 39),
    Sketcher.Constraint("Equal", 39, 41),
    Sketcher.Constraint("Equal", 38, 42),
    Sketcher.Constraint("Equal", 41, 43),
    Sketcher.Constraint("Equal", 43, 45),
    Sketcher.Constraint("Equal", 42, 46),
    Sketcher.Constraint("Equal", 45, 47),
    Sketcher.Constraint("Equal", 47, 49),
    Sketcher.Constraint("Equal", 46, 50),
    Sketcher.Constraint("Equal", 49, 51),
    Sketcher.Constraint("Equal", 51, 53),
    Sketcher.Constraint("Equal", 50, 54),
    Sketcher.Constraint("Equal", 53, 55),
    Sketcher.Constraint("PointOnObject", 0, 2, -2),
    Sketcher.Constraint("PointOnObject", 4, 2, -2),
    Sketcher.Constraint("PointOnObject", 8, 2, -2),
    Sketcher.Constraint("PointOnObject", 12, 2, -2),
    Sketcher.Constraint("PointOnObject", 16, 2, -2),
    Sketcher.Constraint("PointOnObject", 20, 2, -2),
    Sketcher.Constraint("PointOnObject", 24, 2, -2),
    Sketcher.Constraint("PointOnObject", 28, 2, -2),
    Sketcher.Constraint("PointOnObject", 32, 2, -2),
    Sketcher.Constraint("PointOnObject", 36, 2, -2),
    Sketcher.Constraint("PointOnObject", 40, 2, -2),
    Sketcher.Constraint("PointOnObject", 44, 2, -2),
    Sketcher.Constraint("PointOnObject", 48, 2, -2),
    Sketcher.Constraint("PointOnObject", 52, 2, -2),
    Sketcher.Constraint("Vertical", 1, 3, 3, 3),
    Sketcher.Constraint("Vertical", 3, 3, 5, 3),
    Sketcher.Constraint("Vertical", 2, 3, 6, 3),
    Sketcher.Constraint("Vertical", 5, 3, 7, 3),
    Sketcher.Constraint("Vertical", 7, 3, 9, 3),
    Sketcher.Constraint("Vertical", 6, 3, 10, 3),
    Sketcher.Constraint("Vertical", 9, 3, 11, 3),
    Sketcher.Constraint("Vertical", 11, 3, 13, 3),
    Sketcher.Constraint("Vertical", 10, 3, 14, 3),
    Sketcher.Constraint("Vertical", 13, 3, 15, 3),
    Sketcher.Constraint("Vertical", 15, 3, 17, 3),
    Sketcher.Constraint("Vertical", 14, 3, 18, 3),
    Sketcher.Constraint("Vertical", 17, 3, 19, 3),
    Sketcher.Constraint("Vertical", 19, 3, 21, 3),
    Sketcher.Constraint("Vertical", 18, 3, 22, 3),
    Sketcher.Constraint("Vertical", 21, 3, 23, 3),
    Sketcher.Constraint("Vertical", 23, 3, 25, 3),
    Sketcher.Constraint("Vertical", 22, 3, 26, 3),
    Sketcher.Constraint("Vertical", 25, 3, 27, 3),
    Sketcher.Constraint("Vertical", 27, 3, 29, 3),
    Sketcher.Constraint("Vertical", 26, 3, 30, 3),
    Sketcher.Constraint("Vertical", 29, 3, 31, 3),
    Sketcher.Constraint("Vertical", 31, 3, 33, 3),
    Sketcher.Constraint("Vertical", 30, 3, 34, 3),
    Sketcher.Constraint("Vertical", 33, 3, 35, 3),
    Sketcher.Constraint("Vertical", 35, 3, 37, 3),
    Sketcher.Constraint("Vertical", 34, 3, 38, 3),
    Sketcher.Constraint("Vertical", 37, 3, 39, 3),
    Sketcher.Constraint("Vertical", 39, 3, 41, 3),
    Sketcher.Constraint("Vertical", 38, 3, 42, 3),
    Sketcher.Constraint("Vertical", 41, 3, 43, 3),
    Sketcher.Constraint("Vertical", 43, 3, 45, 3),
    Sketcher.Constraint("Vertical", 42, 3, 46, 3),
    Sketcher.Constraint("Vertical", 45, 3, 47, 3),
    Sketcher.Constraint("Vertical", 47, 3, 49, 3),
    Sketcher.Constraint("Vertical", 46, 3, 50, 3),
    Sketcher.Constraint("Vertical", 49, 3, 51, 3),
    Sketcher.Constraint("Vertical", 51, 3, 53, 3),
    Sketcher.Constraint("Vertical", 50, 3, 54, 3),
    Sketcher.Constraint("Vertical", 53, 3, 55, 3),
    Sketcher.Constraint("Vertical", 1, 2, 2, 2),
    Sketcher.Constraint("Vertical", 2, 2, 5, 2),
    Sketcher.Constraint("Vertical", 5, 2, 6, 2),
    Sketcher.Constraint("Vertical", 6, 2, 9, 2),
    Sketcher.Constraint("Vertical", 9, 2, 10, 2),
    Sketcher.Constraint("Vertical", 10, 2, 13, 2),
    Sketcher.Constraint("Vertical", 13, 2, 14, 2),
    Sketcher.Constraint("Vertical", 14, 2, 17, 2),
    Sketcher.Constraint("Vertical", 17, 2, 18, 2),
    Sketcher.Constraint("Vertical", 18, 2, 21, 2),
    Sketcher.Constraint("Vertical", 21, 2, 22, 2),
    Sketcher.Constraint("Vertical", 22, 2, 25, 2),
    Sketcher.Constraint("Vertical", 25, 2, 26, 2),
    Sketcher.Constraint("Vertical", 26, 2, 29, 2),
    Sketcher.Constraint("Vertical", 29, 2, 30, 2),
    Sketcher.Constraint("Vertical", 30, 2, 33, 2),
    Sketcher.Constraint("Vertical", 33, 2, 34, 2),
    Sketcher.Constraint("Vertical", 34, 2, 37, 2),
    Sketcher.Constraint("Vertical", 37, 2, 38, 2),
    Sketcher.Constraint("Vertical", 38, 2, 41, 2),
    Sketcher.Constraint("Vertical", 41, 2, 42, 2),
    Sketcher.Constraint("Vertical", 42, 2, 45, 2),
    Sketcher.Constraint("Vertical", 45, 2, 46, 2),
    Sketcher.Constraint("Vertical", 46, 2, 49, 2),
    Sketcher.Constraint("Vertical", 49, 2, 50, 2),
    Sketcher.Constraint("Vertical", 50, 2, 53, 2),
    Sketcher.Constraint("Vertical", 53, 2, 54, 2),
    Sketcher.Constraint("Radius", 1, Q("9.368 mm")),
    Sketcher.Constraint("DistanceY", 7, 2, -1, 1, Q("160 mm")),
    Sketcher.Constraint("Radius", 2, Q("5.501 mm")),
    Sketcher.Constraint("DistanceY", 13, 2, -1, 1, Q("142.79 mm")),
    Sketcher.Constraint("DistanceY", 27, 2, -1, 1, Q("125.58 mm")),
    Sketcher.Constraint("DistanceY", 33, 2, -1, 1, Q("108.37 mm")),
    Sketcher.Constraint("DistanceY", 47, 2, -1, 1, Q("91.16 mm")),
    Sketcher.Constraint("DistanceY", 53, 2, -1, 1, Q("73.95 mm")),
    Sketcher.Constraint("DistanceY", 0, 1, 0, 2, Q("5.8057 mm")),
    Sketcher.Constraint("DistanceY", 1, 3, -1, 1, Q("154.409 mm")),
    Sketcher.Constraint("DistanceY", 5, 3, -1, 1, Q("147.525 mm")),
    Sketcher.Constraint("DistanceY", 9, 3, -1, 1, Q("140.641 mm")),
    Sketcher.Constraint("DistanceY", 13, 3, -1, 1, Q("133.757 mm")),
    Sketcher.Constraint("DistanceY", 17, 3, -1, 1, Q("126.873 mm")),
    Sketcher.Constraint("DistanceY", 21, 3, -1, 1, Q("119.989 mm")),
    Sketcher.Constraint("DistanceY", 29, 3, -1, 1, Q("106.221 mm")),
    Sketcher.Constraint("DistanceY", 37, 3, -1, 1, Q("92.453 mm")),
    Sketcher.Constraint("DistanceY", 41, 3, -1, 1, Q("85.569 mm")),
    Sketcher.Constraint("DistanceY", 49, 3, -1, 1, Q("71.801 mm")),
])
pad3 = doc.addObject("PartDesign::Pad", "Pad002")
body.addObject(pad3)
pad3.Profile = sketch3
pad3.setExpression("Length", "Params.pad3_length")

sketch4 = doc.addObject("Sketcher::SketchObject", "Sketch003")
body.addObject(sketch4)
sketch4.AttachmentSupport = (doc.XY_Plane, [""])
sketch4.MapMode = "FlatFace"
sketch4.addGeometry([
    Part.LineSegment(App.Vector(-8, 2.5, 0), App.Vector(-8, 0, 0)),
    Part.LineSegment(App.Vector(-8, 0, 0), App.Vector(-5, 0, 0)),
    Part.LineSegment(App.Vector(-5, 0, 0), App.Vector(-5, 2.5, 0)),
    Part.LineSegment(App.Vector(-5, 2.5, 0), App.Vector(-8, 2.5, 0)),
], False)
sketch4.addConstraint([
    Sketcher.Constraint("Coincident", 0, 2, 1, 1),
    Sketcher.Constraint("Coincident", 1, 2, 2, 1),
    Sketcher.Constraint("Coincident", 2, 2, 3, 1),
    Sketcher.Constraint("Coincident", 3, 2, 0, 1),
    Sketcher.Constraint("Vertical", 0),
    Sketcher.Constraint("Horizontal", 1),
    Sketcher.Constraint("Vertical", 2),
    Sketcher.Constraint("Horizontal", 3),
    Sketcher.Constraint("PointOnObject", 0, 2, -1),
    Sketcher.Constraint("DistanceX", 1, 1, 1, 2, Q("3 mm")),
    Sketcher.Constraint("DistanceY", 0, 2, 0, 1, Q("2.5 mm")),
    Sketcher.Constraint("DistanceX", 0, 2, -1, 1, Q("8 mm")),
])
sketch4.setExpression("Constraints[9]", "Params.sketch4_width")
sketch4.setExpression("Constraints[10]", "Params.sketch4_height")
pocket1 = doc.addObject("PartDesign::Pocket", "Pocket")
body.addObject(pocket1)
pocket1.Profile = sketch4
pocket1.setExpression("Length", "Params.pocket1_length")

sketch5 = doc.addObject("Sketcher::SketchObject", "Sketch004")
body.addObject(sketch5)
sketch5.AttachmentSupport = (doc.XZ_Plane, [""])
sketch5.MapMode = "FlatFace"
sketch5.addGeometry([
    Part.LineSegment(App.Vector(40, -65, 0), App.Vector(45, -65, 0)),
    Part.LineSegment(App.Vector(45, -65, 0), App.Vector(45, -50, 0)),
    Part.LineSegment(App.Vector(45, -50, 0), App.Vector(40, -50, 0)),
    Part.LineSegment(App.Vector(40, -50, 0), App.Vector(40, -65, 0)),
], False)
sketch5.addConstraint([
    Sketcher.Constraint("Coincident", 0, 2, 1, 1),
    Sketcher.Constraint("Coincident", 1, 2, 2, 1),
    Sketcher.Constraint("Coincident", 2, 2, 3, 1),
    Sketcher.Constraint("Coincident", 3, 2, 0, 1),
    Sketcher.Constraint("Horizontal", 0),
    Sketcher.Constraint("Vertical", 1),
    Sketcher.Constraint("Horizontal", 2),
    Sketcher.Constraint("Vertical", 3),
    Sketcher.Constraint("DistanceX", 0, 1, 0, 2, Q("5 mm")),
    Sketcher.Constraint("DistanceY", 1, 1, 1, 2, Q("15 mm")),
    Sketcher.Constraint("DistanceX", -1, 1, 0, 2, Q("45 mm")),
    Sketcher.Constraint("DistanceY", 0, 2, -1, 1, Q("65 mm")),
])
sketch5.setExpression("Constraints[8]", "Params.sketch5_width")
sketch5.setExpression("Constraints[9]", "Params.sketch5_height")
pad4 = doc.addObject("PartDesign::Pad", "Pad003")
body.addObject(pad4)
pad4.Profile = sketch5
pad4.setExpression("Length", "Params.pad4_length")
doc.recompute()

chamfer = doc.addObject("PartDesign::Chamfer", "Chamfer")
body.addObject(chamfer)
chamfer.Base = (pad4, edges_at(pad4, [(42.5, -4.95, -65)]))
chamfer.setExpression("Size", "Params.chamfer_size")

sketch6 = doc.addObject("Sketcher::SketchObject", "Sketch005")
body.addObject(sketch6)
sketch6.AttachmentSupport = (doc.YZ_Plane, [""])
sketch6.MapMode = "FlatFace"
sketch6.AttachmentOffset = App.Placement(App.Vector(0, 0, 95.426), App.Rotation())
sketch6.addGeometry([
    Part.LineSegment(App.Vector(1.6171, -65, 0), App.Vector(3.3829, -65, 0)),
    Part.LineSegment(App.Vector(3.3829, -65, 0), App.Vector(4, -61.5, 0)),
    Part.LineSegment(App.Vector(4, -61.5, 0), App.Vector(1, -61.5, 0)),
    Part.LineSegment(App.Vector(1, -61.5, 0), App.Vector(1.6171, -65, 0)),
], False)
sketch6.addConstraint([
    Sketcher.Constraint("Coincident", 0, 2, 1, 1),
    Sketcher.Constraint("Coincident", 1, 2, 2, 1),
    Sketcher.Constraint("Coincident", 2, 2, 3, 1),
    Sketcher.Constraint("Coincident", 3, 2, 0, 1),
    Sketcher.Constraint("Horizontal", 0),
    Sketcher.Constraint("Horizontal", 2),
    Sketcher.Constraint("Equal", 1, 3),
    Sketcher.Constraint("DistanceX", 2, 2, 2, 1, Q("3 mm")),
    Sketcher.Constraint("DistanceY", 0, 2, 1, 2, Q("3.5 mm")),
    Sketcher.Constraint("Angle", 1, Q("80.0007 deg")),
    Sketcher.Constraint("DistanceY", 0, 2, -1, 1, Q("65 mm")),
    Sketcher.Constraint("DistanceX", -1, 1, 1, 2, Q("4 mm")),
])
sketch6.setExpression("Constraints[7]", "Params.sketch6_width")
pocket2 = doc.addObject("PartDesign::Pocket", "Pocket001")
body.addObject(pocket2)
pocket2.Profile = sketch6
pocket2.setExpression("Length", "Params.pocket2_length")

doc.recompute()
